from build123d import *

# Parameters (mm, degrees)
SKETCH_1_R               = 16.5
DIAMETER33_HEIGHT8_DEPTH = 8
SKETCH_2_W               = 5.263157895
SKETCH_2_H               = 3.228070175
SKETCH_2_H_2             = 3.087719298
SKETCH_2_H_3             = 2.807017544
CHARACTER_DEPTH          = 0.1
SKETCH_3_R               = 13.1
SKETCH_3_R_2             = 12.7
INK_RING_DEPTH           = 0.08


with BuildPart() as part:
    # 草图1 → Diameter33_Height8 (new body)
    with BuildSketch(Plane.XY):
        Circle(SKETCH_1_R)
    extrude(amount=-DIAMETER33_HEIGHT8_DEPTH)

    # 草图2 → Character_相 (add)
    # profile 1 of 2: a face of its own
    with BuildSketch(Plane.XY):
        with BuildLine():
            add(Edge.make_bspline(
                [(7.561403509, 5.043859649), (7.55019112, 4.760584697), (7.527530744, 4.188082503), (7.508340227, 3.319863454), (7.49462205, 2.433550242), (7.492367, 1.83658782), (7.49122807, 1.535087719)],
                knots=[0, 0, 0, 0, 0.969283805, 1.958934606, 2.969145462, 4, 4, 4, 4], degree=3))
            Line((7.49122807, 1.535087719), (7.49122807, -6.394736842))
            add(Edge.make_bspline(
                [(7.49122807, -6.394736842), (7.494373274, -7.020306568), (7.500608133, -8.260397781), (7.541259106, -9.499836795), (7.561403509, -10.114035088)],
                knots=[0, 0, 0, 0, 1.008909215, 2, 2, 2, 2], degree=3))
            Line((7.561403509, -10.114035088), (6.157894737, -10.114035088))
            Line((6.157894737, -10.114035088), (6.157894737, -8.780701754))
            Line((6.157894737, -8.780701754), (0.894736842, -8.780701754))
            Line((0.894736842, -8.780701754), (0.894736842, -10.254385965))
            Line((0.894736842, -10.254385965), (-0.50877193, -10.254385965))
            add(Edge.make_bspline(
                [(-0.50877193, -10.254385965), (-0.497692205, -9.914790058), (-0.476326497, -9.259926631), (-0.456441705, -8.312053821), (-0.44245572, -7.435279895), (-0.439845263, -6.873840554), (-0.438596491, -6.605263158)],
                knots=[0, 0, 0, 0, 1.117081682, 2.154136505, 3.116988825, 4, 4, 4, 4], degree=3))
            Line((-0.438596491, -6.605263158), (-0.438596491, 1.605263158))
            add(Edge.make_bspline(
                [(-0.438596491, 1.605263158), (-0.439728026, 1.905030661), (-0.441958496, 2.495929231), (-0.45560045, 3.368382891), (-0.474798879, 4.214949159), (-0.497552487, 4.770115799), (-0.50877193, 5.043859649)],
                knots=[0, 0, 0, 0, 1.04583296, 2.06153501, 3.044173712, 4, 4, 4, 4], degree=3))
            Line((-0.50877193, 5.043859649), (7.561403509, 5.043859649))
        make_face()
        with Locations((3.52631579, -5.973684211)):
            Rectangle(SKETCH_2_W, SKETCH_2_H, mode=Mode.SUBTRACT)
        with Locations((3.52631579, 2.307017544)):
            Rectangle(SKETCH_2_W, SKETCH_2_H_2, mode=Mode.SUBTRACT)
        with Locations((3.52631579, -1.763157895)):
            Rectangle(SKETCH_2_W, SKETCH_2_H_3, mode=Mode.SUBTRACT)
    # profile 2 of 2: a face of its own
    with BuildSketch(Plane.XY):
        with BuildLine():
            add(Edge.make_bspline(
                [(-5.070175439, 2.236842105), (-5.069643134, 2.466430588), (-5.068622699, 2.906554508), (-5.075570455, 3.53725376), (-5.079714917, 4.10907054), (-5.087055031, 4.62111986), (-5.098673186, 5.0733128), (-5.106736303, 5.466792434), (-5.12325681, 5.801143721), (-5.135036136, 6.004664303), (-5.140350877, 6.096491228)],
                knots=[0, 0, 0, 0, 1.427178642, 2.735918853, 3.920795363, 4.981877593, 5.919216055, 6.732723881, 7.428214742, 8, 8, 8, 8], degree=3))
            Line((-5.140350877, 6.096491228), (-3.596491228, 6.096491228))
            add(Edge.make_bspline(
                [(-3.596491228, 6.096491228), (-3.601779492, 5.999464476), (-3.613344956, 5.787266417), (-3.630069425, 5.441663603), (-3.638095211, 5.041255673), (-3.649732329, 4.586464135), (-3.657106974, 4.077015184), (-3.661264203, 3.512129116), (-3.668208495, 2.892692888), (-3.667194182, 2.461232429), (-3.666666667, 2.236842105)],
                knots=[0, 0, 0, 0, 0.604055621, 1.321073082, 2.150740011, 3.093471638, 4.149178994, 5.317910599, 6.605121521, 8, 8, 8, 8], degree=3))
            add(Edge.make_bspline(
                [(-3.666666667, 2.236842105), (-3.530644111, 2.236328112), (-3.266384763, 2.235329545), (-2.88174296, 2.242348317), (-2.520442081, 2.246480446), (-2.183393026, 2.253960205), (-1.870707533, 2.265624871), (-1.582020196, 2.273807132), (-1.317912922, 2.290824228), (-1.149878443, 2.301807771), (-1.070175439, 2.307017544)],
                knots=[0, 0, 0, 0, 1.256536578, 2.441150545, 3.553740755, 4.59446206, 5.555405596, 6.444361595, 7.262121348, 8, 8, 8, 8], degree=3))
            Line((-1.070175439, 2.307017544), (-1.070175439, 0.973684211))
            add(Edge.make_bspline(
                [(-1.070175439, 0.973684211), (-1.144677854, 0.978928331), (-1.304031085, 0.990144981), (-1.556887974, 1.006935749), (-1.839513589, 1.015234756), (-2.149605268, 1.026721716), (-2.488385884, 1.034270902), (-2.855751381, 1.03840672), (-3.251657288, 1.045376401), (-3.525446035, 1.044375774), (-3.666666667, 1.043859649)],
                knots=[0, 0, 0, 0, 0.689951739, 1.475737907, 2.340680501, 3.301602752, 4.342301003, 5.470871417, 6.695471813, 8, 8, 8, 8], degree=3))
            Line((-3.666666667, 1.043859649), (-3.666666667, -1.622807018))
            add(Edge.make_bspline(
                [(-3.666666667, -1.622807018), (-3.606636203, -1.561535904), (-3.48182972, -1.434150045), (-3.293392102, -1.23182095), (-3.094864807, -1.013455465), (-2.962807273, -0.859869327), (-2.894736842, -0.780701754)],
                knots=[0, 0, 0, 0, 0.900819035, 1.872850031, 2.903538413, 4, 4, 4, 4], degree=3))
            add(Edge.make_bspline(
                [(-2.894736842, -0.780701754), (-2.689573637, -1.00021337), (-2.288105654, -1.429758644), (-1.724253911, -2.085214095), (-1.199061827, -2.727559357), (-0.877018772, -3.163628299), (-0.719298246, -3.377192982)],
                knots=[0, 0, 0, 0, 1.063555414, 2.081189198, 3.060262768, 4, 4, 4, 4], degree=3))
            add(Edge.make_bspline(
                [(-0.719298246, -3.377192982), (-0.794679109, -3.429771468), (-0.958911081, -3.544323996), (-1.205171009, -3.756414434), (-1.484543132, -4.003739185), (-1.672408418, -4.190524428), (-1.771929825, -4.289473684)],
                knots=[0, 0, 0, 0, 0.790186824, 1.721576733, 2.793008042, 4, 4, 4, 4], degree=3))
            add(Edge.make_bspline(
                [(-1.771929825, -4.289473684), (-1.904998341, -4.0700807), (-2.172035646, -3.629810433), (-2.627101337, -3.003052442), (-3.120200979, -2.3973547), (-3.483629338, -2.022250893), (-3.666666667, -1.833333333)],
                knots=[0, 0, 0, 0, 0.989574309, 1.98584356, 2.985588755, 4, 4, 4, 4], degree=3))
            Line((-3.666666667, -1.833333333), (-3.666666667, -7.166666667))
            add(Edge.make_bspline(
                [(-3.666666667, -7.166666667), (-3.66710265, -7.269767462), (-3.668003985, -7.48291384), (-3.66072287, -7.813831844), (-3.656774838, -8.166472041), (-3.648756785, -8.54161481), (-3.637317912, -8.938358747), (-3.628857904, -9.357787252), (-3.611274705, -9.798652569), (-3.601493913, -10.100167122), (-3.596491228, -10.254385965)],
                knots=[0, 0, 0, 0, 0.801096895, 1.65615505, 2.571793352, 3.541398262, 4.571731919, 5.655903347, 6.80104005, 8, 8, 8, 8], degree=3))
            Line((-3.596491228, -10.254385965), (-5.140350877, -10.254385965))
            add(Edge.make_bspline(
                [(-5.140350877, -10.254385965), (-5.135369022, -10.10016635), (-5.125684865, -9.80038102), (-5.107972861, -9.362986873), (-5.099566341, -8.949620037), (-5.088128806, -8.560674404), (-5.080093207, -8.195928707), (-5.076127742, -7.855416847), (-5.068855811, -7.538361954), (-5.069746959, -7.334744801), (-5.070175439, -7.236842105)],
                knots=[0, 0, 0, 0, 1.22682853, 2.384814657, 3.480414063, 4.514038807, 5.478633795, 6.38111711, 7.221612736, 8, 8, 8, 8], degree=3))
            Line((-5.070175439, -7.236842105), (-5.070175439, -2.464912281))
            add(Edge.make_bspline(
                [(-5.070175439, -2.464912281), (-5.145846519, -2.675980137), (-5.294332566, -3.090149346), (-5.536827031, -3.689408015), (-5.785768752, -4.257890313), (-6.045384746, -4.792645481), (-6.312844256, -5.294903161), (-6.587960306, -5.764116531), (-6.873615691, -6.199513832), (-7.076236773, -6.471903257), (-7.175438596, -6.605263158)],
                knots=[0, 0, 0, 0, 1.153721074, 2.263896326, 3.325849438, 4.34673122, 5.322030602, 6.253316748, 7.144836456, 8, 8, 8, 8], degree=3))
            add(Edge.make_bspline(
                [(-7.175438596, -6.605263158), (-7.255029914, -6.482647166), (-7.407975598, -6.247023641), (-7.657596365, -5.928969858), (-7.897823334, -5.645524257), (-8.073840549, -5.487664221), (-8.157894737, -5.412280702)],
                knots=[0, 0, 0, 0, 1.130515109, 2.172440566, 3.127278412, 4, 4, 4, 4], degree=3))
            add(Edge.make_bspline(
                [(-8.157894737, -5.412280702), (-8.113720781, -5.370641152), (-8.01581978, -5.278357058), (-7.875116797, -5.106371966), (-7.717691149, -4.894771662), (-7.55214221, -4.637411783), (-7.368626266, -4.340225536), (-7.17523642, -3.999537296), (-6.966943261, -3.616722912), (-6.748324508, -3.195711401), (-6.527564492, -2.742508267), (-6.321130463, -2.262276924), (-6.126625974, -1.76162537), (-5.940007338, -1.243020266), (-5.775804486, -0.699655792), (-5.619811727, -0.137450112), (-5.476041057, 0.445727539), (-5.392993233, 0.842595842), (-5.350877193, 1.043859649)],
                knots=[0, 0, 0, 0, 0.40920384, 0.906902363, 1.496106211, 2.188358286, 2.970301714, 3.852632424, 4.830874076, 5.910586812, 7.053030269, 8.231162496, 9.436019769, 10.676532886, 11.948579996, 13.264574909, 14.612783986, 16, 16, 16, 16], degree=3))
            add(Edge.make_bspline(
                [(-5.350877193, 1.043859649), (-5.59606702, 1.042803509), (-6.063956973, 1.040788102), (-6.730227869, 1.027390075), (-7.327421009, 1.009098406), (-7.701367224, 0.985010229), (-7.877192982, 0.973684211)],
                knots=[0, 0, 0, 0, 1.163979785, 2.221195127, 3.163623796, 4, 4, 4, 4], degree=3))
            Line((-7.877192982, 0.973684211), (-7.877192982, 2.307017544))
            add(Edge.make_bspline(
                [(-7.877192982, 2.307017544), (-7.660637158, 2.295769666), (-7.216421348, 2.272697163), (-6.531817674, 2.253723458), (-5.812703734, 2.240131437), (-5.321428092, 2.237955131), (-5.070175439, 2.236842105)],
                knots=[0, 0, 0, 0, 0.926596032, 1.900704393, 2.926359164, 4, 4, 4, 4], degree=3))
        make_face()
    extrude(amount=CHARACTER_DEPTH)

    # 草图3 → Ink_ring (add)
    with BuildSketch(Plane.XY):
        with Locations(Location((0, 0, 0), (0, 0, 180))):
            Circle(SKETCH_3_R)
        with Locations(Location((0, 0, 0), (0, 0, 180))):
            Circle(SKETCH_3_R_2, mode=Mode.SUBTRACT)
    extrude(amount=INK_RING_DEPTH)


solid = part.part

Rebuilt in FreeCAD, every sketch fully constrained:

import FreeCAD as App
import Part
import Sketcher

V = App.Vector

doc = App.newDocument("Part")
body = doc.addObject("PartDesign::Body", "Body")

sketch1 = body.newObject("Sketcher::SketchObject", "Sketch")
sketch1.AttachmentSupport = (doc.getObject("XY_Plane"), [""])
sketch1.MapMode = "FlatFace"
sketch1.addGeometry(Part.Circle(V(0, 0, 0), V(0, 0, 1), 16), False)
sketch1.addConstraint([
    Sketcher.Constraint("Coincident", 0, 3, -1, 1),
    Sketcher.Constraint("Diameter", 0, 33.0),
])
pad1 = body.newObject("PartDesign::Pad", "Pad")
pad1.Profile = sketch1
pad1.Length = 8
pad1.Reversed = True

sketch2 = body.newObject("Sketcher::SketchObject", "Sketch001")
sketch2.AttachmentSupport = (doc.getObject("XY_Plane"), [""])
sketch2.MapMode = "FlatFace"
sketch2.addGeometry([
    Part.BSplineCurve([V(7.561404, 5.04386, 0), V(7.550191, 4.760585, 0), V(7.527531, 4.188083, 0), V(7.50834, 3.319863, 0), V(7.494622, 2.43355, 0), V(7.492367, 1.836588, 0), V(7.491228, 1.535088, 0)], [4, 1, 1, 1, 4], [0, 0.969283805, 1.958934606, 2.969145462, 4], False, 3, [1, 1, 1, 1, 1, 1, 1], False),
    Part.LineSegment(V(7.561404, 5.04386, 0), V(-0.508772, 5.04386, 0)),
    Part.BSplineCurve([V(-0.438596, 1.605263, 0), V(-0.439728, 1.905031, 0), V(-0.441958, 2.495929, 0), V(-0.4556, 3.368383, 0), V(-0.474799, 4.214949, 0), V(-0.497552, 4.770116, 0), V(-0.508772, 5.04386, 0)], [4, 1, 1, 1, 4], [0, 1.04583296, 2.06153501, 3.044173712, 4], False, 3, [1, 1, 1, 1, 1, 1, 1], False),
    Part.LineSegment(V(-0.438596, 1.605263, 0), V(-0.438596, -6.605263, 0)),
    Part.BSplineCurve([V(-0.508772, -10.254386, 0), V(-0.497692, -9.91479, 0), V(-0.476326, -9.259927, 0), V(-0.456442, -8.312054, 0), V(-0.442456, -7.43528, 0), V(-0.439845, -6.873841, 0), V(-0.438596, -6.605263, 0)], [4, 1, 1, 1, 4], [0, 1.117081682, 2.154136505, 3.116988825, 4], False, 3, [1, 1, 1, 1, 1, 1, 1], False),
    Part.LineSegment(V(-0.508772, -10.254386, 0), V(0.894737, -10.254386, 0)),
    Part.LineSegment(V(0.894737, -10.254386, 0), V(0.894737, -8.780702, 0)),
    Part.LineSegment(V(0.894737, -8.780702, 0), V(6.157895, -8.780702, 0)),
    Part.LineSegment(V(6.157895, -8.780702, 0), V(6.157895, -10.114035, 0)),
    Part.LineSegment(V(6.157895, -10.114035, 0), V(7.561404, -10.114035, 0)),
    Part.BSplineCurve([V(7.491228, -6.394737, 0), V(7.494373, -7.020307, 0), V(7.500608, -8.260398, 0), V(7.541259, -9.499837, 0), V(7.561404, -10.114035, 0)], [4, 1, 4], [0, 1.008909215, 2], False, 3, [1, 1, 1, 1, 1], False),
    Part.LineSegment(V(7.491228, -6.394737, 0), V(7.491228, 1.535088, 0)),
    Part.LineSegment(V(0.894737, -7.587719, 0), V(0.894737, -4.359649, 0)),
    Part.LineSegment(V(0.894737, -4.359649, 0), V(6.157895, -4.359649, 0)),
    Part.LineSegment(V(6.157895, -4.359649, 0), V(6.157895, -7.587719, 0)),
    Part.LineSegment(V(6.157895, -7.587719, 0), V(0.894737, -7.587719, 0)),
    Part.LineSegment(V(0.894737, -3.166667, 0), V(0.894737, -0.359649, 0)),
    Part.LineSegment(V(0.894737, -0.359649, 0), V(6.157895, -0.359649, 0)),
    Part.LineSegment(V(6.157895, -0.359649, 0), V(6.157895, -3.166667, 0)),
    Part.LineSegment(V(6.157895, -3.166667, 0), V(0.894737, -3.166667, 0)),
    Part.LineSegment(V(0.894737, 0.763158, 0), V(0.894737, 3.850877, 0)),
    Part.LineSegment(V(0.894737, 3.850877, 0), V(6.157895, 3.850877, 0)),
    Part.LineSegment(V(6.157895, 3.850877, 0), V(6.157895, 0.763158, 0)),
    Part.LineSegment(V(6.157895, 0.763158, 0), V(0.894737, 0.763158, 0)),
    Part.BSplineCurve([V(-5.070175, 2.236842, 0), V(-5.069643, 2.466431, 0), V(-5.068623, 2.906555, 0), V(-5.07557, 3.537254, 0), V(-5.079715, 4.109071, 0), V(-5.087055, 4.62112, 0), V(-5.098673, 5.073313, 0), V(-5.106736, 5.466792, 0), V(-5.123257, 5.801144, 0), V(-5.135036, 6.004664, 0), V(-5.140351, 6.096491, 0)], [4, 1, 1, 1, 1, 1, 1, 1, 4], [0, 1.427178642, 2.735918853, 3.920795363, 4.981877593, 5.919216055, 6.732723881, 7.428214742, 8], False, 3, [1, 1, 1, 1, 1, 1, 1, 1, 1, 1, 1], False),
    Part.BSplineCurve([V(-7.877193, 2.307018, 0), V(-7.660637, 2.29577, 0), V(-7.216421, 2.272697, 0), V(-6.531818, 2.253723, 0), V(-5.812704, 2.240131, 0), V(-5.321428, 2.237955, 0), V(-5.070175, 2.236842, 0)], [4, 1, 1, 1, 4], [0, 0.926596032, 1.900704393, 2.926359164, 4], False, 3, [1, 1, 1, 1, 1, 1, 1], False),
    Part.LineSegment(V(-7.877193, 2.307018, 0), V(-7.877193, 0.973684, 0)),
    Part.BSplineCurve([V(-5.350877, 1.04386, 0), V(-5.596067, 1.042804, 0), V(-6.063957, 1.040788, 0), V(-6.730228, 1.02739, 0), V(-7.327421, 1.009098, 0), V(-7.701367, 0.98501, 0), V(-7.877193, 0.973684, 0)], [4, 1, 1, 1, 4], [0, 1.163979785, 2.221195127, 3.163623796, 4], False, 3, [1, 1, 1, 1, 1, 1, 1], False),
    Part.BSplineCurve([V(-8.157895, -5.412281, 0), V(-8.113721, -5.370641, 0), V(-8.01582, -5.278357, 0), V(-7.875117, -5.106372, 0), V(-7.717691, -4.894772, 0), V(-7.552142, -4.637412, 0), V(-7.368626, -4.340226, 0), V(-7.175236, -3.999537, 0), V(-6.966943, -3.616723, 0), V(-6.748325, -3.195711, 0), V(-6.527564, -2.742508, 0), V(-6.32113, -2.262277, 0), V(-6.126626, -1.761625, 0), V(-5.940007, -1.24302, 0), V(-5.775804, -0.699656, 0), V(-5.619812, -0.13745, 0), V(-5.476041, 0.445728, 0), V(-5.392993, 0.842596, 0), V(-5.350877, 1.04386, 0)], [4, 1, 1, 1, 1, 1, 1, 1, 1, 1, 1, 1, 1, 1, 1, 1, 4], [0, 0.40920384, 0.906902363, 1.496106211, 2.188358286, 2.970301714, 3.852632424, 4.830874076, 5.910586812, 7.053030269, 8.231162496, 9.436019769, 10.676532886, 11.948579996, 13.264574909, 14.612783986, 16], False, 3, [1, 1, 1, 1, 1, 1, 1, 1, 1, 1, 1, 1, 1, 1, 1, 1, 1, 1, 1], False),
    Part.BSplineCurve([V(-7.175439, -6.605263, 0), V(-7.25503, -6.482647, 0), V(-7.407976, -6.247024, 0), V(-7.657596, -5.92897, 0), V(-7.897823, -5.645524, 0), V(-8.073841, -5.487664, 0), V(-8.157895, -5.412281, 0)], [4, 1, 1, 1, 4], [0, 1.130515109, 2.172440566, 3.127278412, 4], False, 3, [1, 1, 1, 1, 1, 1, 1], False),
    Part.BSplineCurve([V(-5.070175, -2.464912, 0), V(-5.145847, -2.67598, 0), V(-5.294333, -3.090149, 0), V(-5.536827, -3.689408, 0), V(-5.785769, -4.25789, 0), V(-6.045385, -4.792645, 0), V(-6.312844, -5.294903, 0), V(-6.58796, -5.764117, 0), V(-6.873616, -6.199514, 0), V(-7.076237, -6.471903, 0), V(-7.175439, -6.605263, 0)], [4, 1, 1, 1, 1, 1, 1, 1, 4], [0, 1.153721074, 2.263896326, 3.325849438, 4.34673122, 5.322030602, 6.253316748, 7.144836456, 8], False, 3, [1, 1, 1, 1, 1, 1, 1, 1, 1, 1, 1], False),
    Part.LineSegment(V(-5.070175, -2.464912, 0), V(-5.070175, -7.236842, 0)),
    Part.BSplineCurve([V(-5.140351, -10.254386, 0), V(-5.135369, -10.100166, 0), V(-5.125685, -9.800381, 0), V(-5.107973, -9.362987, 0), V(-5.099566, -8.94962, 0), V(-5.088129, -8.560674, 0), V(-5.080093, -8.195929, 0), V(-5.076128, -7.855417, 0), V(-5.068856, -7.538362, 0), V(-5.069747, -7.334745, 0), V(-5.070175, -7.236842, 0)], [4, 1, 1, 1, 1, 1, 1, 1, 4], [0, 1.22682853, 2.384814657, 3.480414063, 4.514038807, 5.478633795, 6.38111711, 7.221612736, 8], False, 3, [1, 1, 1, 1, 1, 1, 1, 1, 1, 1, 1], False),
    Part.LineSegment(V(-5.140351, -10.254386, 0), V(-3.596491, -10.254386, 0)),
    Part.BSplineCurve([V(-3.666667, -7.166667, 0), V(-3.667103, -7.269767, 0), V(-3.668004, -7.482914, 0), V(-3.660723, -7.813832, 0), V(-3.656775, -8.166472, 0), V(-3.648757, -8.541615, 0), V(-3.637318, -8.938359, 0), V(-3.628858, -9.357787, 0), V(-3.611275, -9.798653, 0), V(-3.601494, -10.100167, 0), V(-3.596491, -10.254386, 0)], [4, 1, 1, 1, 1, 1, 1, 1, 4], [0, 0.801096895, 1.65615505, 2.571793352, 3.541398262, 4.571731919, 5.655903347, 6.80104005, 8], False, 3, [1, 1, 1, 1, 1, 1, 1, 1, 1, 1, 1], False),
    Part.LineSegment(V(-3.666667, -7.166667, 0), V(-3.666667, -1.833333, 0)),
    Part.BSplineCurve([V(-1.77193, -4.289474, 0), V(-1.904998, -4.070081, 0), V(-2.172036, -3.62981, 0), V(-2.627101, -3.003052, 0), V(-3.120201, -2.397355, 0), V(-3.483629, -2.022251, 0), V(-3.666667, -1.833333, 0)], [4, 1, 1, 1, 4], [0, 0.989574309, 1.98584356, 2.985588755, 4], False, 3, [1, 1, 1, 1, 1, 1, 1], False),
    Part.BSplineCurve([V(-0.719298, -3.377193, 0), V(-0.794679, -3.429771, 0), V(-0.958911, -3.544324, 0), V(-1.205171, -3.756414, 0), V(-1.484543, -4.003739, 0), V(-1.672408, -4.190524, 0), V(-1.77193, -4.289474, 0)], [4, 1, 1, 1, 4], [0, 0.790186824, 1.721576733, 2.793008042, 4], False, 3, [1, 1, 1, 1, 1, 1, 1], False),
    Part.BSplineCurve([V(-2.894737, -0.780702, 0), V(-2.689574, -1.000213, 0), V(-2.288106, -1.429759, 0), V(-1.724254, -2.085214, 0), V(-1.199062, -2.727559, 0), V(-0.877019, -3.163628, 0), V(-0.719298, -3.377193, 0)], [4, 1, 1, 1, 4], [0, 1.063555414, 2.081189198, 3.060262768, 4], False, 3, [1, 1, 1, 1, 1, 1, 1], False),
    Part.BSplineCurve([V(-3.666667, -1.622807, 0), V(-3.606636, -1.561536, 0), V(-3.48183, -1.43415, 0), V(-3.293392, -1.231821, 0), V(-3.094865, -1.013455, 0), V(-2.962807, -0.859869, 0), V(-2.894737, -0.780702, 0)], [4, 1, 1, 1, 4], [0, 0.900819035, 1.872850031, 2.903538413, 4], False, 3, [1, 1, 1, 1, 1, 1, 1], False),
    Part.LineSegment(V(-3.666667, -1.622807, 0), V(-3.666667, 1.04386, 0)),
    Part.BSplineCurve([V(-1.070175, 0.973684, 0), V(-1.144678, 0.978928, 0), V(-1.304031, 0.990145, 0), V(-1.556888, 1.006936, 0), V(-1.839514, 1.015235, 0), V(-2.149605, 1.026722, 0), V(-2.488386, 1.034271, 0), V(-2.855751, 1.038407, 0), V(-3.251657, 1.045376, 0), V(-3.525446, 1.044376, 0), V(-3.666667, 1.04386, 0)], [4, 1, 1, 1, 1, 1, 1, 1, 4], [0, 0.689951739, 1.475737907, 2.340680501, 3.301602752, 4.342301003, 5.470871417, 6.695471813, 8], False, 3, [1, 1, 1, 1, 1, 1, 1, 1, 1, 1, 1], False),
    Part.LineSegment(V(-1.070175, 0.973684, 0), V(-1.070175, 2.307018, 0)),
    Part.BSplineCurve([V(-3.666667, 2.236842, 0), V(-3.530644, 2.236328, 0), V(-3.266385, 2.23533, 0), V(-2.881743, 2.242348, 0), V(-2.520442, 2.24648, 0), V(-2.183393, 2.25396, 0), V(-1.870708, 2.265625, 0), V(-1.58202, 2.273807, 0), V(-1.317913, 2.290824, 0), V(-1.149878, 2.301808, 0), V(-1.070175, 2.307018, 0)], [4, 1, 1, 1, 1, 1, 1, 1, 4], [0, 1.256536578, 2.441150545, 3.553740755, 4.59446206, 5.555405596, 6.444361595, 7.262121348, 8], False, 3, [1, 1, 1, 1, 1, 1, 1, 1, 1, 1, 1], False),
    Part.BSplineCurve([V(-3.596491, 6.096491, 0), V(-3.601779, 5.999464, 0), V(-3.613345, 5.787266, 0), V(-3.630069, 5.441664, 0), V(-3.638095, 5.041256, 0), V(-3.649732, 4.586464, 0), V(-3.657107, 4.077015, 0), V(-3.661264, 3.512129, 0), V(-3.668208, 2.892693, 0), V(-3.667194, 2.461232, 0), V(-3.666667, 2.236842, 0)], [4, 1, 1, 1, 1, 1, 1, 1, 4], [0, 0.604055621, 1.321073082, 2.150740011, 3.093471638, 4.149178994, 5.317910599, 6.605121521, 8], False, 3, [1, 1, 1, 1, 1, 1, 1, 1, 1, 1, 1], False),
    Part.LineSegment(V(-3.596491, 6.096491, 0), V(-5.140351, 6.096491, 0)),
], False)
sketch2.addConstraint([
    Sketcher.Constraint("Block", 0),
    Sketcher.Constraint("Block", 2),
    Sketcher.Constraint("Block", 4),
    Sketcher.Constraint("Block", 10),
    Sketcher.Constraint("Block", 24),
    Sketcher.Constraint("Block", 25),
    Sketcher.Constraint("Block", 27),
    Sketcher.Constraint("Block", 28),
    Sketcher.Constraint("Block", 29),
    Sketcher.Constraint("Block", 30),
    Sketcher.Constraint("Block", 32),
    Sketcher.Constraint("Block", 34),
    Sketcher.Constraint("Block", 36),
    Sketcher.Constraint("Block", 37),
    Sketcher.Constraint("Block", 38),
    Sketcher.Constraint("Block", 39),
    Sketcher.Constraint("Block", 41),
    Sketcher.Constraint("Block", 43),
    Sketcher.Constraint("Block", 44),
    Sketcher.Constraint("Coincident", 0, 1, 1, 1),
    Sketcher.Constraint("Coincident", 1, 2, 2, 2),
    Sketcher.Constraint("Coincident", 2, 1, 3, 1),
    Sketcher.Constraint("Coincident", 3, 2, 4, 2),
    Sketcher.Constraint("Coincident", 4, 1, 5, 1),
    Sketcher.Constraint("Coincident", 5, 2, 6, 1),
    Sketcher.Constraint("Coincident", 6, 2, 7, 1),
    Sketcher.Constraint("Coincident", 7, 2, 8, 1),
    Sketcher.Constraint("Coincident", 8, 2, 9, 1),
    Sketcher.Constraint("Coincident", 9, 2, 10, 2),
    Sketcher.Constraint("Coincident", 10, 1, 11, 1),
    Sketcher.Constraint("Coincident", 11, 2, 0, 2),
    Sketcher.Constraint("Coincident", 12, 2, 13, 1),
    Sketcher.Constraint("Coincident", 13, 2, 14, 1),
    Sketcher.Constraint("Coincident", 14, 2, 15, 1),
    Sketcher.Constraint("Coincident", 15, 2, 12, 1),
    Sketcher.Constraint("Coincident", 16, 2, 17, 1),
    Sketcher.Constraint("Coincident", 17, 2, 18, 1),
    Sketcher.Constraint("Coincident", 18, 2, 19, 1),
    Sketcher.Constraint("Coincident", 19, 2, 16, 1),
    Sketcher.Constraint("Coincident", 20, 2, 21, 1),
    Sketcher.Constraint("Coincident", 21, 2, 22, 1),
    Sketcher.Constraint("Coincident", 22, 2, 23, 1),
    Sketcher.Constraint("Coincident", 23, 2, 20, 1),
    Sketcher.Constraint("Coincident", 25, 1, 26, 1),
    Sketcher.Constraint("Coincident", 26, 2, 27, 2),
    Sketcher.Constraint("Coincident", 30, 1, 31, 1),
    Sketcher.Constraint("Coincident", 31, 2, 32, 2),
    Sketcher.Constraint("Coincident", 32, 1, 33, 1),
    Sketcher.Constraint("Coincident", 33, 2, 34, 2),
    Sketcher.Constraint("Coincident", 34, 1, 35, 1),
    Sketcher.Constraint("Coincident", 35, 2, 36, 2),
    Sketcher.Constraint("Coincident", 39, 1, 40, 1),
    Sketcher.Constraint("Coincident", 40, 2, 41, 2),
    Sketcher.Constraint("Coincident", 41, 1, 42, 1),
    Sketcher.Constraint("Coincident", 42, 2, 43, 2),
    Sketcher.Constraint("Coincident", 44, 1, 45, 1),
    Sketcher.Constraint("Coincident", 45, 2, 24, 2),
    Sketcher.Constraint("Horizontal", 5),
    Sketcher.Constraint("Vertical", 6),
    Sketcher.Constraint("Horizontal", 7),
    Sketcher.Constraint("Vertical", 8),
    Sketcher.Constraint("Horizontal", 9),
    Sketcher.Constraint("Vertical", 12),
    Sketcher.Constraint("Horizontal", 13),
    Sketcher.Constraint("Vertical", 14),
    Sketcher.Constraint("Horizontal", 15),
    Sketcher.Constraint("Vertical", 16),
    Sketcher.Constraint("Horizontal", 17),
    Sketcher.Constraint("Vertical", 18),
    Sketcher.Constraint("Horizontal", 19),
    Sketcher.Constraint("Vertical", 20),
    Sketcher.Constraint("Horizontal", 21),
    Sketcher.Constraint("Vertical", 22),
    Sketcher.Constraint("Horizontal", 23),
    Sketcher.Constraint("DistanceY", 12, 2, 16, 2, 4.0),
    Sketcher.Constraint("DistanceX", 5, 1, 5, 2, 1.403509),
    Sketcher.Constraint("DistanceX", 9, 1, 9, 2, 1.403509),
    Sketcher.Constraint("DistanceY", 12, 1, 12, 2, 3.22807),
    Sketcher.Constraint("DistanceY", 20, 1, 20, 2, 3.087719),
    Sketcher.Constraint("DistanceY", 6, 2, -1, 1, 8.780702),
    Sketcher.Constraint("DistanceY", 23, 2, 1, 2, 4.280702),
    Sketcher.Constraint("DistanceX", 13, 1, 13, 2, 5.263158),
    Sketcher.Constraint("DistanceX", 17, 1, 17, 2, 5.263158),
    Sketcher.Constraint("DistanceX", 21, 1, 21, 2, 5.263158),
    Sketcher.Constraint("DistanceY", 16, 1, 16, 2, 2.807018),
    Sketcher.Constraint("DistanceY", 12, 2, -1, 1, 4.359649),
    Sketcher.Constraint("DistanceX", 13, 2, 9, 2, 1.403509),
    Sketcher.Constraint("DistanceX", 1, 2, 16, 2, 1.403509),
    Sketcher.Constraint("DistanceX", 1, 2, 20, 2, 1.403509),
])
pad2 = body.newObject("PartDesign::Pad", "Pad001")
pad2.Profile = sketch2
pad2.Length = 0.1

sketch3 = body.newObject("Sketcher::SketchObject", "Sketch002")
sketch3.AttachmentSupport = (doc.getObject("XY_Plane"), [""])
sketch3.MapMode = "FlatFace"
sketch3.addGeometry([
    Part.Circle(V(0, 0, 0), V(0, 0, 1), 13),
    Part.Circle(V(0, 0, 0), V(0, 0, 1), 13),
], False)
sketch3.addConstraint([
    Sketcher.Constraint("Coincident", 0, 3, -1, 1),
    Sketcher.Constraint("Coincident", 1, 3, -1, 1),
    Sketcher.Constraint("Diameter", 0, 26.2),
    Sketcher.Constraint("Diameter", 1, 25.4),
])
pad3 = body.newObject("PartDesign::Pad", "Pad002")
pad3.Profile = sketch3
pad3.Length = 0.08

doc.recompute()
